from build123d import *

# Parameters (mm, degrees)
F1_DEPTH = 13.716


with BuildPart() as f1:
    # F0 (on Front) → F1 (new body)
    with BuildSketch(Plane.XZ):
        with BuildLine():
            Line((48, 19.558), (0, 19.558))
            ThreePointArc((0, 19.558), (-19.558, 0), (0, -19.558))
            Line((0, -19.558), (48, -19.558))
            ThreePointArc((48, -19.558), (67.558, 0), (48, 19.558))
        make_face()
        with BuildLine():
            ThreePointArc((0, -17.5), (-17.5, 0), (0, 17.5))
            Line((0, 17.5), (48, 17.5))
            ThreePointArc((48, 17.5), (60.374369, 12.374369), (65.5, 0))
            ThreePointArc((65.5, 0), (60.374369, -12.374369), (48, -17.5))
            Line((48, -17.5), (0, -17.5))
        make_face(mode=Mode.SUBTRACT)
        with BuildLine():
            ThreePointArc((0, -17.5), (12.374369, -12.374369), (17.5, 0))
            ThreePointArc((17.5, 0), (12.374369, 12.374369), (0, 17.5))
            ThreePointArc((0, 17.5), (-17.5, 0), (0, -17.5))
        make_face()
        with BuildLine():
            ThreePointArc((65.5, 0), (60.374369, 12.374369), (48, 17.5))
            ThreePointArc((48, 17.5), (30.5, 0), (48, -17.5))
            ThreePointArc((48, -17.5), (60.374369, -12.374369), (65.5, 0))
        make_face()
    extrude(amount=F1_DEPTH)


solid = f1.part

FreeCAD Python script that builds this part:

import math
import FreeCAD as App
import Part
import Sketcher

V = App.Vector
Q = App.Units.Quantity

doc = App.newDocument("Part")
body = doc.addObject("PartDesign::Body", "Body")

sketch1 = body.newObject("Sketcher::SketchObject", "Sketch")
sketch1.AttachmentSupport = (doc.getObject("XZ_Plane"), [""])
sketch1.MapMode = "FlatFace"
sketch1.addGeometry(Part.LineSegment(V(48, 20, 0), V(0, 20, 0)), False)
sketch1.addGeometry(Part.ArcOfCircle(Part.Circle(V(0, 0, 0), V(0, 0, 1), 20), math.radians(90), math.radians(270)), False)
sketch1.addGeometry(Part.LineSegment(V(0, -20, 0), V(48, -20, 0)), False)
sketch1.addGeometry(Part.ArcOfCircle(Part.Circle(V(48, 0, 0), V(0, 0, 1), 20), math.radians(-90), math.radians(90)), False)
sketch1.addGeometry(Part.LineSegment(V(48, -18, 0), V(0, -18, 0)), False)
sketch1.addGeometry(Part.ArcOfCircle(Part.Circle(V(0, 0, 0), V(0, 0, 1), 17), math.radians(-90), math.radians(0)), False)
sketch1.addGeometry(Part.ArcOfCircle(Part.Circle(V(0, 0, 0), V(0, 0, 1), 17), math.radians(0), math.radians(90)), False)
sketch1.addGeometry(Part.LineSegment(V(0, 18, 0), V(48, 18, 0)), False)
sketch1.addGeometry(Part.ArcOfCircle(Part.Circle(V(48, 0, 0), V(0, 0, 1), 18), math.radians(90), math.radians(270)), False)
sketch1.addConstraint(Sketcher.Constraint("Tangent", 0, 2, 1, 1))
sketch1.addConstraint(Sketcher.Constraint("Tangent", 1, 2, 2, 1))
sketch1.addConstraint(Sketcher.Constraint("Tangent", 2, 2, 3, 1))
sketch1.addConstraint(Sketcher.Constraint("Tangent", 3, 2, 0, 1))
sketch1.addConstraint(Sketcher.Constraint("Tangent", 4, 2, 5, 1))
sketch1.addConstraint(Sketcher.Constraint("Tangent", 5, 2, 6, 1))
sketch1.addConstraint(Sketcher.Constraint("Tangent", 6, 2, 7, 1))
sketch1.addConstraint(Sketcher.Constraint("Tangent", 7, 2, 8, 1))
sketch1.addConstraint(Sketcher.Constraint("Tangent", 8, 2, 4, 1))
sketch1.addConstraint(Sketcher.Constraint("Horizontal", 0))
sketch1.addConstraint(Sketcher.Constraint("Horizontal", 2))
sketch1.addConstraint(Sketcher.Constraint("Horizontal", 4))
sketch1.addConstraint(Sketcher.Constraint("Horizontal", 7))
sketch1.addConstraint(Sketcher.Constraint("Coincident", 1, 3, -1, 1))
sketch1.addConstraint(Sketcher.Constraint("Coincident", 5, 3, -1, 1))
sketch1.addConstraint(Sketcher.Constraint("Coincident", 8, 3, 3, 3))
sketch1.addConstraint(Sketcher.Constraint("PointOnObject", 5, 2, -1))
sketch1.addConstraint(Sketcher.Constraint("Radius", 5, Q("17.499999 mm")))
sketch1.addConstraint(Sketcher.Constraint("DistanceX", 0, 2, 0, 1, Q("48 mm")))
sketch1.addConstraint(Sketcher.Constraint("Radius", 1, Q("19.558 mm")))
pad1 = body.newObject("PartDesign::Pad", "Pad")
pad1.Profile = sketch1
pad1.Length = 13.716

doc.recompute()
